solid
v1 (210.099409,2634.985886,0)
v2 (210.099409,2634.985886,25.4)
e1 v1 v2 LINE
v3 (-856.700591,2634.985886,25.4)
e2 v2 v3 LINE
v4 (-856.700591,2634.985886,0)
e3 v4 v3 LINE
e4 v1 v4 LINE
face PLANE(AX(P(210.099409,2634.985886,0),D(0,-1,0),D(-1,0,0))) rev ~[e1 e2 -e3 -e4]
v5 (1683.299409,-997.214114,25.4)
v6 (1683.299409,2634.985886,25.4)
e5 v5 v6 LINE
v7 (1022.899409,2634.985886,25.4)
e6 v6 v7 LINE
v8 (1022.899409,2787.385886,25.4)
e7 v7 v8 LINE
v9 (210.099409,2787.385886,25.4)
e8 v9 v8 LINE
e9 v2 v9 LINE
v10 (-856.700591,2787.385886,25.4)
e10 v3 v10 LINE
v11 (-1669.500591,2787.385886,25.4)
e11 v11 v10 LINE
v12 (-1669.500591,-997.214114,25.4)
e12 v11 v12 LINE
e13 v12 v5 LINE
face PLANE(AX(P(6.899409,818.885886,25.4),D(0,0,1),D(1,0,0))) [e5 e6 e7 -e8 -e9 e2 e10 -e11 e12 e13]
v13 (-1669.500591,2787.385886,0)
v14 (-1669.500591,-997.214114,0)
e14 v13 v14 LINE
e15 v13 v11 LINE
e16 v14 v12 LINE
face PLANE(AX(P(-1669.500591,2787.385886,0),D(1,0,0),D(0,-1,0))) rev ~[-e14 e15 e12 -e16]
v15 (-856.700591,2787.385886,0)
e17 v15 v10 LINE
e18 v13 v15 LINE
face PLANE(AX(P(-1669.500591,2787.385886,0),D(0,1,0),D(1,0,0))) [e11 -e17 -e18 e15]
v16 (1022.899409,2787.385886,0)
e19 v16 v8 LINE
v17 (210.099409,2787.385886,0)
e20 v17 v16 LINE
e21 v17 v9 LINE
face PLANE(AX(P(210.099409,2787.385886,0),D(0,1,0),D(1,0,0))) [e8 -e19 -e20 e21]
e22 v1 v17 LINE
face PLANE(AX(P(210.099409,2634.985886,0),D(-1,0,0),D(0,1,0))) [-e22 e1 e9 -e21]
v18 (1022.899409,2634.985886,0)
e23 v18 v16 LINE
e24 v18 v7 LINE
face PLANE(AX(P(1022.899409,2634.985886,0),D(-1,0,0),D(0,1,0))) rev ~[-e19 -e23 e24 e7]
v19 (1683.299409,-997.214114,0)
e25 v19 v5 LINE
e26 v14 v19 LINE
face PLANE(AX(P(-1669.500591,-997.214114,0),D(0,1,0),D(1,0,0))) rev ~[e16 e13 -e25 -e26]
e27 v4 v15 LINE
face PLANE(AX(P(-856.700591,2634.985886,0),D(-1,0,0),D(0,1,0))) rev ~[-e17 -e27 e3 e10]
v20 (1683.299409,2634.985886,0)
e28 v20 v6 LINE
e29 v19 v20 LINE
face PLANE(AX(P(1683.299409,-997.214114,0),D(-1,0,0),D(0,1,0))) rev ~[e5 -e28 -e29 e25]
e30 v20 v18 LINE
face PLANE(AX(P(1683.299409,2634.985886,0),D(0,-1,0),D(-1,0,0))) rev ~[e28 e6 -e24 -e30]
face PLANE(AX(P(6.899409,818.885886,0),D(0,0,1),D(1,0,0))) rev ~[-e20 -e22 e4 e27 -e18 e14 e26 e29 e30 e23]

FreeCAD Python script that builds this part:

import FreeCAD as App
import Part
import Sketcher
Q = App.Units.Quantity

doc = App.newDocument("Part")
body = doc.addObject("PartDesign::Body", "Body")

sketch1 = body.newObject("Sketcher::SketchObject", "Sketch")
sketch1.AttachmentSupport = (doc.getObject("XY_Plane"), [""])
sketch1.MapMode = "FlatFace"
sketch1.addGeometry(Part.LineSegment(App.Vector(-1670, -997, 0), App.Vector(1683, -997, 0)), False)
sketch1.addGeometry(Part.LineSegment(App.Vector(1683, -997, 0), App.Vector(1683, 2635, 0)), False)
sketch1.addGeometry(Part.LineSegment(App.Vector(1683, 2635, 0), App.Vector(1023, 2635, 0)), False)
sketch1.addGeometry(Part.LineSegment(App.Vector(1023, 2635, 0), App.Vector(1023, 2787, 0)), False)
sketch1.addGeometry(Part.LineSegment(App.Vector(1023, 2787, 0), App.Vector(210, 2787, 0)), False)
sketch1.addGeometry(Part.LineSegment(App.Vector(210, 2787, 0), App.Vector(210, 2635, 0)), False)
sketch1.addGeometry(Part.LineSegment(App.Vector(210, 2635, 0), App.Vector(-857, 2635, 0)), False)
sketch1.addGeometry(Part.LineSegment(App.Vector(-857, 2635, 0), App.Vector(-857, 2787, 0)), False)
sketch1.addGeometry(Part.LineSegment(App.Vector(-857, 2787, 0), App.Vector(-1670, 2787, 0)), False)
sketch1.addGeometry(Part.LineSegment(App.Vector(-1670, 2787, 0), App.Vector(-1670, -997, 0)), False)
sketch1.addConstraint(Sketcher.Constraint("Coincident", 0, 2, 1, 1))
sketch1.addConstraint(Sketcher.Constraint("Coincident", 1, 2, 2, 1))
sketch1.addConstraint(Sketcher.Constraint("Coincident", 2, 2, 3, 1))
sketch1.addConstraint(Sketcher.Constraint("Coincident", 3, 2, 4, 1))
sketch1.addConstraint(Sketcher.Constraint("Coincident", 4, 2, 5, 1))
sketch1.addConstraint(Sketcher.Constraint("Coincident", 5, 2, 6, 1))
sketch1.addConstraint(Sketcher.Constraint("Coincident", 6, 2, 7, 1))
sketch1.addConstraint(Sketcher.Constraint("Coincident", 7, 2, 8, 1))
sketch1.addConstraint(Sketcher.Constraint("Coincident", 8, 2, 9, 1))
sketch1.addConstraint(Sketcher.Constraint("Coincident", 9, 2, 0, 1))
sketch1.addConstraint(Sketcher.Constraint("Horizontal", 0))
sketch1.addConstraint(Sketcher.Constraint("Vertical", 1))
sketch1.addConstraint(Sketcher.Constraint("Horizontal", 2))
sketch1.addConstraint(Sketcher.Constraint("Vertical", 3))
sketch1.addConstraint(Sketcher.Constraint("Horizontal", 4))
sketch1.addConstraint(Sketcher.Constraint("Vertical", 5))
sketch1.addConstraint(Sketcher.Constraint("Horizontal", 6))
sketch1.addConstraint(Sketcher.Constraint("Vertical", 7))
sketch1.addConstraint(Sketcher.Constraint("Horizontal", 8))
sketch1.addConstraint(Sketcher.Constraint("Vertical", 9))
sketch1.addConstraint(Sketcher.Constraint("Horizontal", 2, 2, 5, 2))
sketch1.addConstraint(Sketcher.Constraint("Horizontal", 4, 2, 7, 2))
sketch1.addConstraint(Sketcher.Constraint("Equal", 4, 8))
sketch1.addConstraint(Sketcher.Constraint("DistanceX", 0, 1, 0, 2, Q("132 in")))
sketch1.addConstraint(Sketcher.Constraint("DistanceX", 2, 2, 2, 1, Q("26 in")))
sketch1.addConstraint(Sketcher.Constraint("DistanceX", 4, 2, 4, 1, Q("32 in")))
sketch1.addConstraint(Sketcher.Constraint("DistanceY", 1, 1, 1, 2, Q("143 in")))
sketch1.addConstraint(Sketcher.Constraint("DistanceY", 3, 1, 3, 2, Q("6 in")))
sketch1.addConstraint(Sketcher.Constraint("DistanceX", -1, 1, 0, 2, Q("1683.299409 mm")))
sketch1.addConstraint(Sketcher.Constraint("DistanceY", 0, 2, -1, 1, Q("997.214114 mm")))
pad1 = body.newObject("PartDesign::Pad", "Pad")
pad1.Profile = sketch1
pad1.Length = Q("1 in")

doc.recompute()
